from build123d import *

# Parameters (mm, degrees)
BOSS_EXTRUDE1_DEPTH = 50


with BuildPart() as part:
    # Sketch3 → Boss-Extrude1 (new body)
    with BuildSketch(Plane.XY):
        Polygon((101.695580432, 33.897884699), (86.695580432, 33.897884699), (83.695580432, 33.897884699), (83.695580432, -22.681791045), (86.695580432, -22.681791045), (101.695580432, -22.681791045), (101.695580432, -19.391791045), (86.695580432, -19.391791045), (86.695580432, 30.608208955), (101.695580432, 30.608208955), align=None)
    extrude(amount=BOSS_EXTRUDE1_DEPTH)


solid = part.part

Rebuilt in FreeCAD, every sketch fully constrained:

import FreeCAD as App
import Part
import Sketcher
from FreeCAD import Vector
Q = App.Units.Quantity

doc = App.newDocument("Part")
body = doc.addObject("PartDesign::Body", "Body")

# Sketch on XY plane
sketch1 = doc.addObject("Sketcher::SketchObject", "Sketch")
body.addObject(sketch1)
sketch1.AttachmentSupport = (doc.XY_Plane, [""])
sketch1.MapMode = "FlatFace"
sketch1.addGeometry([
    Part.LineSegment(Vector(101.7, 33.9, 0), Vector(83.7, 33.9, 0)),  # 0
    Part.LineSegment(Vector(83.7, 33.9, 0), Vector(83.7, -22.7, 0)),  # 1
    Part.LineSegment(Vector(83.7, -22.7, 0), Vector(101.7, -22.7, 0)),  # 2
    Part.LineSegment(Vector(101.7, -22.7, 0), Vector(101.7, -19.4, 0)),  # 3
    Part.LineSegment(Vector(101.7, -19.4, 0), Vector(86.7, -19.4, 0)),  # 4
    Part.LineSegment(Vector(86.7, -19.4, 0), Vector(86.7, 30.6, 0)),  # 5
    Part.LineSegment(Vector(86.7, 30.6, 0), Vector(101.7, 30.6, 0)),  # 6
    Part.LineSegment(Vector(101.7, 30.6, 0), Vector(101.7, 33.9, 0)),  # 7
], False)
sketch1.addConstraint([
    Sketcher.Constraint("Coincident", 0, 2, 1, 1),
    Sketcher.Constraint("Coincident", 1, 2, 2, 1),
    Sketcher.Constraint("Coincident", 2, 2, 3, 1),
    Sketcher.Constraint("Coincident", 3, 2, 4, 1),
    Sketcher.Constraint("Coincident", 4, 2, 5, 1),
    Sketcher.Constraint("Coincident", 5, 2, 6, 1),
    Sketcher.Constraint("Coincident", 6, 2, 7, 1),
    Sketcher.Constraint("Coincident", 7, 2, 0, 1),
    Sketcher.Constraint("Horizontal", 0),
    Sketcher.Constraint("Vertical", 1),
    Sketcher.Constraint("Horizontal", 2),
    Sketcher.Constraint("Vertical", 3),
    Sketcher.Constraint("Horizontal", 4),
    Sketcher.Constraint("Vertical", 5),
    Sketcher.Constraint("Horizontal", 6),
    Sketcher.Constraint("Vertical", 7),
    Sketcher.Constraint("Vertical", 3, 2, 6, 2),
    Sketcher.Constraint("DistanceX", 0, 2, 0, 1, Q("18 mm")),
    Sketcher.Constraint("DistanceX", 4, 2, 4, 1, Q("15 mm")),
    Sketcher.Constraint("DistanceY", 5, 1, 5, 2, Q("50 mm")),
    Sketcher.Constraint("DistanceY", 3, 1, 3, 2, Q("3.29 mm")),
    Sketcher.Constraint("DistanceY", 1, 2, 1, 1, Q("56.579676 mm")),
    Sketcher.Constraint("DistanceX", -1, 1, 0, 2, Q("83.69558 mm")),
    Sketcher.Constraint("DistanceY", 1, 2, -1, 1, Q("22.681791 mm")),
])
pad1 = doc.addObject("PartDesign::Pad", "Pad")
body.addObject(pad1)
pad1.Profile = sketch1
pad1.Length = 50

doc.recompute()
